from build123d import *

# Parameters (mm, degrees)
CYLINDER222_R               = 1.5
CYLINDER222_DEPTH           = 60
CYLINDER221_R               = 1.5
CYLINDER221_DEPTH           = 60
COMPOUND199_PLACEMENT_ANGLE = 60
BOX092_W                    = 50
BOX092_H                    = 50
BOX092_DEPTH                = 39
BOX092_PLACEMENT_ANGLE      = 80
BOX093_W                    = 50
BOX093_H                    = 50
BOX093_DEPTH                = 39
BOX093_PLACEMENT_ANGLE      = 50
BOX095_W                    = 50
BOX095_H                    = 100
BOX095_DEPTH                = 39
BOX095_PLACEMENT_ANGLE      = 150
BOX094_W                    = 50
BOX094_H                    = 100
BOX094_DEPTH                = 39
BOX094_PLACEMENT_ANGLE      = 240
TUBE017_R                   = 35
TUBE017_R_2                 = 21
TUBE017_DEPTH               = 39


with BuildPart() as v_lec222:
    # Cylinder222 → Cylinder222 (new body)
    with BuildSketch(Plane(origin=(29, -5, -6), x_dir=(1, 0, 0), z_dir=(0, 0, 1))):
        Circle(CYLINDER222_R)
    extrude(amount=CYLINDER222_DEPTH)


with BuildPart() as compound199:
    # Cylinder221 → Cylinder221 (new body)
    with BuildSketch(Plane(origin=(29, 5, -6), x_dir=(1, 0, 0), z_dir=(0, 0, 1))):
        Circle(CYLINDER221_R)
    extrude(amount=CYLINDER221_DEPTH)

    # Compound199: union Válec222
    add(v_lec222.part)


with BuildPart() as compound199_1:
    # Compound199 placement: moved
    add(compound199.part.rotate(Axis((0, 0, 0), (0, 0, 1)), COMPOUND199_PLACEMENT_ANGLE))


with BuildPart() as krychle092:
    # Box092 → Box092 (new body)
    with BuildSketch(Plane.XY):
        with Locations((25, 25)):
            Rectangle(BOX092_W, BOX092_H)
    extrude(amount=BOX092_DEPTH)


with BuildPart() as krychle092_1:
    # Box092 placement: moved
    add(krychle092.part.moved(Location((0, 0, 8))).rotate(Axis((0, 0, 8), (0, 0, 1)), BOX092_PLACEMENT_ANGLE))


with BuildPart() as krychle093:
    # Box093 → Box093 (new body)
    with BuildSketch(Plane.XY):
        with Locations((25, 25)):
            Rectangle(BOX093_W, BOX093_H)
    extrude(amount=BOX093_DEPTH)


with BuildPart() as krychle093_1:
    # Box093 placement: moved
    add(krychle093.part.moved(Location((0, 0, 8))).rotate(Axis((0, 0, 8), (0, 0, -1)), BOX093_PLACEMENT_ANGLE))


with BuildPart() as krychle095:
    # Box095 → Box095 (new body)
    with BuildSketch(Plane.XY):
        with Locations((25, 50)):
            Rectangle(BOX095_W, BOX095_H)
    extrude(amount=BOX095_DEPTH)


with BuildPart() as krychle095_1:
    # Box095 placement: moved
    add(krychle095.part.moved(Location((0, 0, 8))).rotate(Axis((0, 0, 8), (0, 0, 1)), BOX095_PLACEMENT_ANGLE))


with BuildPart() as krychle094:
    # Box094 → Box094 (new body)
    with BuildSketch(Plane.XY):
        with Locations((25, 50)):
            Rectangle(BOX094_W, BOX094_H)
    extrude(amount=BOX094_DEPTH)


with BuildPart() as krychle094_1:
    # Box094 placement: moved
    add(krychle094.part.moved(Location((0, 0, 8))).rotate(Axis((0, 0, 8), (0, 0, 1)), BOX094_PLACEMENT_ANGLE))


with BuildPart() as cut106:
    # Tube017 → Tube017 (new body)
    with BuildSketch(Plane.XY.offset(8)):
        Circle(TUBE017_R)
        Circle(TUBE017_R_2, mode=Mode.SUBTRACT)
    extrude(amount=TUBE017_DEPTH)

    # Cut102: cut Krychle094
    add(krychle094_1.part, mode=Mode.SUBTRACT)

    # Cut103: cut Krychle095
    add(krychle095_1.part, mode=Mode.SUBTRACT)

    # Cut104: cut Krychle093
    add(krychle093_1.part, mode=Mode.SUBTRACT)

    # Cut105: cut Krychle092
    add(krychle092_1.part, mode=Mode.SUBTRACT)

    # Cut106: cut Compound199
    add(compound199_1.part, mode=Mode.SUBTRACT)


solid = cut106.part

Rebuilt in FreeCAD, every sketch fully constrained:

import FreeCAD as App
import Part
import Sketcher
Q = App.Units.Quantity


def add_polygon(sketch, points):
    """Adds a closed chain of lines whose ends are joined by coincident constraints."""
    first, n = sketch.GeometryCount, len(points)
    for a, b in zip(points, points[1:] + points[:1]):
        sketch.addGeometry(Part.LineSegment(App.Vector(*a, 0), App.Vector(*b, 0)), False)
    for i in range(n):
        sketch.addConstraint(Sketcher.Constraint("Coincident", first + i, 2, first + (i + 1) % n, 1))

doc = App.newDocument("Part")
body = doc.addObject("PartDesign::Body", "Body")

# Sketch on XY plane
sketch1 = body.newObject("Sketcher::SketchObject", "Sketch")
sketch1.AttachmentSupport = (doc.getObject("XY_Plane"), [""])
sketch1.MapMode = "FlatFace"
sketch1.AttachmentOffset = App.Placement(App.Vector(0, 0, -6), App.Rotation())
sketch1.addGeometry(Part.Circle(App.Vector(29, -5, 0), App.Vector(0, 0, 1), 1.5), False)
sketch1.addConstraint(Sketcher.Constraint("Diameter", 0, Q("3 mm")))
sketch1.addConstraint(Sketcher.Constraint("DistanceX", -1, 1, 0, 3, Q("29 mm")))
sketch1.addConstraint(Sketcher.Constraint("DistanceY", 0, 3, -1, 1, Q("5 mm")))
pad1 = body.newObject("PartDesign::Pad", "Pad")
pad1.Profile = sketch1
pad1.Length = 60
body2 = doc.addObject("PartDesign::Body", "Body001")
body2.AllowCompound = True

# Sketch on XY plane
sketch2 = body2.newObject("Sketcher::SketchObject", "Sketch001")
sketch2.AttachmentSupport = (doc.getObject("XY_Plane001"), [""])
sketch2.MapMode = "FlatFace"
sketch2.AttachmentOffset = App.Placement(App.Vector(0, 0, -6), App.Rotation())
sketch2.addGeometry(Part.Circle(App.Vector(29, 5, 0), App.Vector(0, 0, 1), 1.5), False)
sketch2.addConstraint(Sketcher.Constraint("Diameter", 0, Q("3 mm")))
sketch2.addConstraint(Sketcher.Constraint("DistanceX", -1, 1, 0, 3, Q("29 mm")))
sketch2.addConstraint(Sketcher.Constraint("DistanceY", -1, 1, 0, 3, Q("5 mm")))
pad2 = body2.newObject("PartDesign::Pad", "Pad001")
pad2.Profile = sketch2
pad2.Length = 60
doc.recompute()

boolean = body2.newObject("PartDesign::Boolean", "Boolean")
boolean.Type = "Fuse"
boolean.addObjects([body])
body3 = doc.addObject("PartDesign::Body", "Body002")
body3.AllowCompound = True
doc.recompute()

body2.Placement = App.Placement(App.Vector(0, 0, 0), App.Rotation(App.Vector(0, 0, 1), 60))
boolean2 = body3.newObject("PartDesign::Boolean", "Boolean001")
boolean2.Type = "Fuse"
boolean2.addObjects([body2])
body4 = doc.addObject("PartDesign::Body", "Body003")

# Sketch on XY plane
sketch3 = body4.newObject("Sketcher::SketchObject", "Sketch002")
sketch3.AttachmentSupport = (doc.getObject("XY_Plane003"), [""])
sketch3.MapMode = "FlatFace"
add_polygon(sketch3, [(0, 50), (0, 0), (50, 0), (50, 50)])  # lines 0-3
sketch3.addConstraint(Sketcher.Constraint("Vertical", 0))
sketch3.addConstraint(Sketcher.Constraint("Horizontal", 1))
sketch3.addConstraint(Sketcher.Constraint("Vertical", 2))
sketch3.addConstraint(Sketcher.Constraint("Horizontal", 3))
sketch3.addConstraint(Sketcher.Constraint("Coincident", 0, 2, -1, 1))
sketch3.addConstraint(Sketcher.Constraint("Equal", 3, 0))
sketch3.addConstraint(Sketcher.Constraint("DistanceX", 1, 1, 1, 2, Q("50 mm")))
pad3 = body4.newObject("PartDesign::Pad", "Pad002")
pad3.Profile = sketch3
pad3.Length = 39
body5 = doc.addObject("PartDesign::Body", "Body004")
doc.recompute()

body4.Placement = App.Placement(App.Vector(0, 0, 8), App.Rotation(App.Vector(0, 0, 1), 80))
boolean3 = body5.newObject("PartDesign::Boolean", "Boolean002")
boolean3.Type = "Fuse"
boolean3.addObjects([body4])
body6 = doc.addObject("PartDesign::Body", "Body005")

# Sketch on XY plane
sketch4 = body6.newObject("Sketcher::SketchObject", "Sketch003")
sketch4.AttachmentSupport = (doc.getObject("XY_Plane005"), [""])
sketch4.MapMode = "FlatFace"
add_polygon(sketch4, [(0, 50), (0, 0), (50, 0), (50, 50)])  # lines 0-3
sketch4.addConstraint(Sketcher.Constraint("Vertical", 0))
sketch4.addConstraint(Sketcher.Constraint("Horizontal", 1))
sketch4.addConstraint(Sketcher.Constraint("Vertical", 2))
sketch4.addConstraint(Sketcher.Constraint("Horizontal", 3))
sketch4.addConstraint(Sketcher.Constraint("Coincident", 0, 2, -1, 1))
sketch4.addConstraint(Sketcher.Constraint("Equal", 3, 0))
sketch4.addConstraint(Sketcher.Constraint("DistanceX", 1, 1, 1, 2, Q("50 mm")))
pad4 = body6.newObject("PartDesign::Pad", "Pad003")
pad4.Profile = sketch4
pad4.Length = 39
body7 = doc.addObject("PartDesign::Body", "Body006")
doc.recompute()

body6.Placement = App.Placement(App.Vector(0, 0, 8), App.Rotation(App.Vector(0, 0, -1), 50))
boolean4 = body7.newObject("PartDesign::Boolean", "Boolean003")
boolean4.Type = "Fuse"
boolean4.addObjects([body6])
body8 = doc.addObject("PartDesign::Body", "Body007")

# Sketch on XY plane
sketch5 = body8.newObject("Sketcher::SketchObject", "Sketch004")
sketch5.AttachmentSupport = (doc.getObject("XY_Plane007"), [""])
sketch5.MapMode = "FlatFace"
add_polygon(sketch5, [(0, 100), (0, 0), (50, 0), (50, 100)])  # lines 0-3
sketch5.addConstraint(Sketcher.Constraint("Vertical", 0))
sketch5.addConstraint(Sketcher.Constraint("Horizontal", 1))
sketch5.addConstraint(Sketcher.Constraint("Vertical", 2))
sketch5.addConstraint(Sketcher.Constraint("Horizontal", 3))
sketch5.addConstraint(Sketcher.Constraint("Coincident", 0, 2, -1, 1))
sketch5.addConstraint(Sketcher.Constraint("DistanceX", 1, 1, 1, 2, Q("50 mm")))
sketch5.addConstraint(Sketcher.Constraint("DistanceY", 0, 2, 0, 1, Q("100 mm")))
pad5 = body8.newObject("PartDesign::Pad", "Pad004")
pad5.Profile = sketch5
pad5.Length = 39
body9 = doc.addObject("PartDesign::Body", "Body008")
doc.recompute()

body8.Placement = App.Placement(App.Vector(0, 0, 8), App.Rotation(App.Vector(0, 0, 1), 150))
boolean5 = body9.newObject("PartDesign::Boolean", "Boolean004")
boolean5.Type = "Fuse"
boolean5.addObjects([body8])
body10 = doc.addObject("PartDesign::Body", "Body009")

# Sketch on XY plane
sketch6 = body10.newObject("Sketcher::SketchObject", "Sketch005")
sketch6.AttachmentSupport = (doc.getObject("XY_Plane009"), [""])
sketch6.MapMode = "FlatFace"
add_polygon(sketch6, [(0, 100), (0, 0), (50, 0), (50, 100)])  # lines 0-3
sketch6.addConstraint(Sketcher.Constraint("Vertical", 0))
sketch6.addConstraint(Sketcher.Constraint("Horizontal", 1))
sketch6.addConstraint(Sketcher.Constraint("Vertical", 2))
sketch6.addConstraint(Sketcher.Constraint("Horizontal", 3))
sketch6.addConstraint(Sketcher.Constraint("Coincident", 0, 2, -1, 1))
sketch6.addConstraint(Sketcher.Constraint("DistanceX", 1, 1, 1, 2, Q("50 mm")))
sketch6.addConstraint(Sketcher.Constraint("DistanceY", 0, 2, 0, 1, Q("100 mm")))
pad6 = body10.newObject("PartDesign::Pad", "Pad005")
pad6.Profile = sketch6
pad6.Length = 39
body11 = doc.addObject("PartDesign::Body", "Body010")
doc.recompute()

body10.Placement = App.Placement(App.Vector(0, 0, 8), App.Rotation(App.Vector(0, 0, 1), 240))
boolean6 = body11.newObject("PartDesign::Boolean", "Boolean005")
boolean6.Type = "Fuse"
boolean6.addObjects([body10])
body12 = doc.addObject("PartDesign::Body", "Body011")

# Sketch on XY plane
sketch7 = body12.newObject("Sketcher::SketchObject", "Sketch006")
sketch7.AttachmentSupport = (doc.getObject("XY_Plane011"), [""])
sketch7.MapMode = "FlatFace"
sketch7.AttachmentOffset = App.Placement(App.Vector(0, 0, 8), App.Rotation())
sketch7.addGeometry(Part.Circle(App.Vector(0, 0, 0), App.Vector(0, 0, 1), 35), False)
sketch7.addGeometry(Part.Circle(App.Vector(0, 0, 0), App.Vector(0, 0, 1), 21), False)
sketch7.addConstraint(Sketcher.Constraint("Coincident", 0, 3, -1, 1))
sketch7.addConstraint(Sketcher.Constraint("Coincident", 1, 3, -1, 1))
sketch7.addConstraint(Sketcher.Constraint("Diameter", 0, Q("70 mm")))
sketch7.addConstraint(Sketcher.Constraint("Diameter", 1, Q("42 mm")))
pad7 = body12.newObject("PartDesign::Pad", "Pad006")
pad7.Profile = sketch7
pad7.Length = 39
doc.recompute()

boolean7 = body12.newObject("PartDesign::Boolean", "Boolean006")
boolean7.Type = "Cut"
boolean7.addObjects([body11])
doc.recompute()

boolean8 = body12.newObject("PartDesign::Boolean", "Boolean007")
boolean8.Type = "Cut"
boolean8.addObjects([body9])
doc.recompute()

boolean9 = body12.newObject("PartDesign::Boolean", "Boolean008")
boolean9.Type = "Cut"
boolean9.addObjects([body7])
doc.recompute()

boolean10 = body12.newObject("PartDesign::Boolean", "Boolean009")
boolean10.Type = "Cut"
boolean10.addObjects([body5])
doc.recompute()

boolean11 = body12.newObject("PartDesign::Boolean", "Boolean010")
boolean11.Type = "Cut"
boolean11.addObjects([body3])

doc.recompute()
